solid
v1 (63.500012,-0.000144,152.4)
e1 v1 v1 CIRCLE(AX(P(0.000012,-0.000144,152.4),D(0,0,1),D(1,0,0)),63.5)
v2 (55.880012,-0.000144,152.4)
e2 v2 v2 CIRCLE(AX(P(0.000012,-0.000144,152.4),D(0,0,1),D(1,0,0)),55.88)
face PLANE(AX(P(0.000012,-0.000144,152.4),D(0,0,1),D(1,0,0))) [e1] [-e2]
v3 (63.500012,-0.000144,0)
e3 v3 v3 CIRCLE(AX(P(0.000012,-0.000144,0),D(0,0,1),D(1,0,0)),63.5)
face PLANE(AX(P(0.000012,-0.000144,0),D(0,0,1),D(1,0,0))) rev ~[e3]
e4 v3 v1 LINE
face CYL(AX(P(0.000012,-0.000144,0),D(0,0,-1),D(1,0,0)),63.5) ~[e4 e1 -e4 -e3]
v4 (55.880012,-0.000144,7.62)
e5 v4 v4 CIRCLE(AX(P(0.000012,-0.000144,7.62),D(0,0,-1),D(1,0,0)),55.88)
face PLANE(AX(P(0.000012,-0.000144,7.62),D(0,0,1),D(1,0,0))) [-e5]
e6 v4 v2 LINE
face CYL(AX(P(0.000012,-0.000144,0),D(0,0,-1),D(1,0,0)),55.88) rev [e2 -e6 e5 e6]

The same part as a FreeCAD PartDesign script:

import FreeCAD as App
import Part
import Sketcher
from FreeCAD import Vector
Q = App.Units.Quantity


def faces_at(feature, points):
    """Names of the faces that lie closest to the given points."""
    faces = feature.Shape.Faces
    near = lambda p: min(range(len(faces)), key=lambda i: faces[i].distToShape(Part.Vertex(*p))[0])
    return sorted({f"Face{near(p) + 1}" for p in points})

doc = App.newDocument("Part")
body = doc.addObject("PartDesign::Body", "Body")

sketch1 = doc.addObject("Sketcher::SketchObject", "Sketch")
body.addObject(sketch1)
sketch1.AttachmentSupport = (doc.XY_Plane, [""])
sketch1.MapMode = "FlatFace"
sketch1.addGeometry(Part.Circle(Vector(-9, 10, 0), Vector(0, 0, 1), 64), False)
sketch1.addConstraint([
    Sketcher.Constraint("Diameter", 0, Q("5 in")),
    Sketcher.Constraint("DistanceX", 0, 3, -1, 1, Q("8.565548 mm")),
    Sketcher.Constraint("DistanceY", -1, 1, 0, 3, Q("9.538906 mm")),
])
pad1 = doc.addObject("PartDesign::Pad", "Pad")
body.addObject(pad1)
pad1.Profile = sketch1
pad1.Length = Q("6 in")
body2 = doc.addObject("PartDesign::Body", "Body001")
doc.recompute()

body.Placement = App.Placement(Vector(8.56556, -9.53905, 0), App.Rotation(Vector(0, 0, 1), 0))
boolean = doc.addObject("PartDesign::Boolean", "Boolean")
body2.addObject(boolean)
boolean.Type = "Fuse"
boolean.addObjects([body])
doc.recompute()

thickness = doc.addObject("PartDesign::Thickness", "Thickness")
body2.addObject(thickness)
thickness.Base = (boolean, faces_at(boolean, [(0, 0, 152.4)]))
thickness.Value = Q("0.3 in")
thickness.Reversed = True
thickness.Join = "Arc"

doc.recompute()
